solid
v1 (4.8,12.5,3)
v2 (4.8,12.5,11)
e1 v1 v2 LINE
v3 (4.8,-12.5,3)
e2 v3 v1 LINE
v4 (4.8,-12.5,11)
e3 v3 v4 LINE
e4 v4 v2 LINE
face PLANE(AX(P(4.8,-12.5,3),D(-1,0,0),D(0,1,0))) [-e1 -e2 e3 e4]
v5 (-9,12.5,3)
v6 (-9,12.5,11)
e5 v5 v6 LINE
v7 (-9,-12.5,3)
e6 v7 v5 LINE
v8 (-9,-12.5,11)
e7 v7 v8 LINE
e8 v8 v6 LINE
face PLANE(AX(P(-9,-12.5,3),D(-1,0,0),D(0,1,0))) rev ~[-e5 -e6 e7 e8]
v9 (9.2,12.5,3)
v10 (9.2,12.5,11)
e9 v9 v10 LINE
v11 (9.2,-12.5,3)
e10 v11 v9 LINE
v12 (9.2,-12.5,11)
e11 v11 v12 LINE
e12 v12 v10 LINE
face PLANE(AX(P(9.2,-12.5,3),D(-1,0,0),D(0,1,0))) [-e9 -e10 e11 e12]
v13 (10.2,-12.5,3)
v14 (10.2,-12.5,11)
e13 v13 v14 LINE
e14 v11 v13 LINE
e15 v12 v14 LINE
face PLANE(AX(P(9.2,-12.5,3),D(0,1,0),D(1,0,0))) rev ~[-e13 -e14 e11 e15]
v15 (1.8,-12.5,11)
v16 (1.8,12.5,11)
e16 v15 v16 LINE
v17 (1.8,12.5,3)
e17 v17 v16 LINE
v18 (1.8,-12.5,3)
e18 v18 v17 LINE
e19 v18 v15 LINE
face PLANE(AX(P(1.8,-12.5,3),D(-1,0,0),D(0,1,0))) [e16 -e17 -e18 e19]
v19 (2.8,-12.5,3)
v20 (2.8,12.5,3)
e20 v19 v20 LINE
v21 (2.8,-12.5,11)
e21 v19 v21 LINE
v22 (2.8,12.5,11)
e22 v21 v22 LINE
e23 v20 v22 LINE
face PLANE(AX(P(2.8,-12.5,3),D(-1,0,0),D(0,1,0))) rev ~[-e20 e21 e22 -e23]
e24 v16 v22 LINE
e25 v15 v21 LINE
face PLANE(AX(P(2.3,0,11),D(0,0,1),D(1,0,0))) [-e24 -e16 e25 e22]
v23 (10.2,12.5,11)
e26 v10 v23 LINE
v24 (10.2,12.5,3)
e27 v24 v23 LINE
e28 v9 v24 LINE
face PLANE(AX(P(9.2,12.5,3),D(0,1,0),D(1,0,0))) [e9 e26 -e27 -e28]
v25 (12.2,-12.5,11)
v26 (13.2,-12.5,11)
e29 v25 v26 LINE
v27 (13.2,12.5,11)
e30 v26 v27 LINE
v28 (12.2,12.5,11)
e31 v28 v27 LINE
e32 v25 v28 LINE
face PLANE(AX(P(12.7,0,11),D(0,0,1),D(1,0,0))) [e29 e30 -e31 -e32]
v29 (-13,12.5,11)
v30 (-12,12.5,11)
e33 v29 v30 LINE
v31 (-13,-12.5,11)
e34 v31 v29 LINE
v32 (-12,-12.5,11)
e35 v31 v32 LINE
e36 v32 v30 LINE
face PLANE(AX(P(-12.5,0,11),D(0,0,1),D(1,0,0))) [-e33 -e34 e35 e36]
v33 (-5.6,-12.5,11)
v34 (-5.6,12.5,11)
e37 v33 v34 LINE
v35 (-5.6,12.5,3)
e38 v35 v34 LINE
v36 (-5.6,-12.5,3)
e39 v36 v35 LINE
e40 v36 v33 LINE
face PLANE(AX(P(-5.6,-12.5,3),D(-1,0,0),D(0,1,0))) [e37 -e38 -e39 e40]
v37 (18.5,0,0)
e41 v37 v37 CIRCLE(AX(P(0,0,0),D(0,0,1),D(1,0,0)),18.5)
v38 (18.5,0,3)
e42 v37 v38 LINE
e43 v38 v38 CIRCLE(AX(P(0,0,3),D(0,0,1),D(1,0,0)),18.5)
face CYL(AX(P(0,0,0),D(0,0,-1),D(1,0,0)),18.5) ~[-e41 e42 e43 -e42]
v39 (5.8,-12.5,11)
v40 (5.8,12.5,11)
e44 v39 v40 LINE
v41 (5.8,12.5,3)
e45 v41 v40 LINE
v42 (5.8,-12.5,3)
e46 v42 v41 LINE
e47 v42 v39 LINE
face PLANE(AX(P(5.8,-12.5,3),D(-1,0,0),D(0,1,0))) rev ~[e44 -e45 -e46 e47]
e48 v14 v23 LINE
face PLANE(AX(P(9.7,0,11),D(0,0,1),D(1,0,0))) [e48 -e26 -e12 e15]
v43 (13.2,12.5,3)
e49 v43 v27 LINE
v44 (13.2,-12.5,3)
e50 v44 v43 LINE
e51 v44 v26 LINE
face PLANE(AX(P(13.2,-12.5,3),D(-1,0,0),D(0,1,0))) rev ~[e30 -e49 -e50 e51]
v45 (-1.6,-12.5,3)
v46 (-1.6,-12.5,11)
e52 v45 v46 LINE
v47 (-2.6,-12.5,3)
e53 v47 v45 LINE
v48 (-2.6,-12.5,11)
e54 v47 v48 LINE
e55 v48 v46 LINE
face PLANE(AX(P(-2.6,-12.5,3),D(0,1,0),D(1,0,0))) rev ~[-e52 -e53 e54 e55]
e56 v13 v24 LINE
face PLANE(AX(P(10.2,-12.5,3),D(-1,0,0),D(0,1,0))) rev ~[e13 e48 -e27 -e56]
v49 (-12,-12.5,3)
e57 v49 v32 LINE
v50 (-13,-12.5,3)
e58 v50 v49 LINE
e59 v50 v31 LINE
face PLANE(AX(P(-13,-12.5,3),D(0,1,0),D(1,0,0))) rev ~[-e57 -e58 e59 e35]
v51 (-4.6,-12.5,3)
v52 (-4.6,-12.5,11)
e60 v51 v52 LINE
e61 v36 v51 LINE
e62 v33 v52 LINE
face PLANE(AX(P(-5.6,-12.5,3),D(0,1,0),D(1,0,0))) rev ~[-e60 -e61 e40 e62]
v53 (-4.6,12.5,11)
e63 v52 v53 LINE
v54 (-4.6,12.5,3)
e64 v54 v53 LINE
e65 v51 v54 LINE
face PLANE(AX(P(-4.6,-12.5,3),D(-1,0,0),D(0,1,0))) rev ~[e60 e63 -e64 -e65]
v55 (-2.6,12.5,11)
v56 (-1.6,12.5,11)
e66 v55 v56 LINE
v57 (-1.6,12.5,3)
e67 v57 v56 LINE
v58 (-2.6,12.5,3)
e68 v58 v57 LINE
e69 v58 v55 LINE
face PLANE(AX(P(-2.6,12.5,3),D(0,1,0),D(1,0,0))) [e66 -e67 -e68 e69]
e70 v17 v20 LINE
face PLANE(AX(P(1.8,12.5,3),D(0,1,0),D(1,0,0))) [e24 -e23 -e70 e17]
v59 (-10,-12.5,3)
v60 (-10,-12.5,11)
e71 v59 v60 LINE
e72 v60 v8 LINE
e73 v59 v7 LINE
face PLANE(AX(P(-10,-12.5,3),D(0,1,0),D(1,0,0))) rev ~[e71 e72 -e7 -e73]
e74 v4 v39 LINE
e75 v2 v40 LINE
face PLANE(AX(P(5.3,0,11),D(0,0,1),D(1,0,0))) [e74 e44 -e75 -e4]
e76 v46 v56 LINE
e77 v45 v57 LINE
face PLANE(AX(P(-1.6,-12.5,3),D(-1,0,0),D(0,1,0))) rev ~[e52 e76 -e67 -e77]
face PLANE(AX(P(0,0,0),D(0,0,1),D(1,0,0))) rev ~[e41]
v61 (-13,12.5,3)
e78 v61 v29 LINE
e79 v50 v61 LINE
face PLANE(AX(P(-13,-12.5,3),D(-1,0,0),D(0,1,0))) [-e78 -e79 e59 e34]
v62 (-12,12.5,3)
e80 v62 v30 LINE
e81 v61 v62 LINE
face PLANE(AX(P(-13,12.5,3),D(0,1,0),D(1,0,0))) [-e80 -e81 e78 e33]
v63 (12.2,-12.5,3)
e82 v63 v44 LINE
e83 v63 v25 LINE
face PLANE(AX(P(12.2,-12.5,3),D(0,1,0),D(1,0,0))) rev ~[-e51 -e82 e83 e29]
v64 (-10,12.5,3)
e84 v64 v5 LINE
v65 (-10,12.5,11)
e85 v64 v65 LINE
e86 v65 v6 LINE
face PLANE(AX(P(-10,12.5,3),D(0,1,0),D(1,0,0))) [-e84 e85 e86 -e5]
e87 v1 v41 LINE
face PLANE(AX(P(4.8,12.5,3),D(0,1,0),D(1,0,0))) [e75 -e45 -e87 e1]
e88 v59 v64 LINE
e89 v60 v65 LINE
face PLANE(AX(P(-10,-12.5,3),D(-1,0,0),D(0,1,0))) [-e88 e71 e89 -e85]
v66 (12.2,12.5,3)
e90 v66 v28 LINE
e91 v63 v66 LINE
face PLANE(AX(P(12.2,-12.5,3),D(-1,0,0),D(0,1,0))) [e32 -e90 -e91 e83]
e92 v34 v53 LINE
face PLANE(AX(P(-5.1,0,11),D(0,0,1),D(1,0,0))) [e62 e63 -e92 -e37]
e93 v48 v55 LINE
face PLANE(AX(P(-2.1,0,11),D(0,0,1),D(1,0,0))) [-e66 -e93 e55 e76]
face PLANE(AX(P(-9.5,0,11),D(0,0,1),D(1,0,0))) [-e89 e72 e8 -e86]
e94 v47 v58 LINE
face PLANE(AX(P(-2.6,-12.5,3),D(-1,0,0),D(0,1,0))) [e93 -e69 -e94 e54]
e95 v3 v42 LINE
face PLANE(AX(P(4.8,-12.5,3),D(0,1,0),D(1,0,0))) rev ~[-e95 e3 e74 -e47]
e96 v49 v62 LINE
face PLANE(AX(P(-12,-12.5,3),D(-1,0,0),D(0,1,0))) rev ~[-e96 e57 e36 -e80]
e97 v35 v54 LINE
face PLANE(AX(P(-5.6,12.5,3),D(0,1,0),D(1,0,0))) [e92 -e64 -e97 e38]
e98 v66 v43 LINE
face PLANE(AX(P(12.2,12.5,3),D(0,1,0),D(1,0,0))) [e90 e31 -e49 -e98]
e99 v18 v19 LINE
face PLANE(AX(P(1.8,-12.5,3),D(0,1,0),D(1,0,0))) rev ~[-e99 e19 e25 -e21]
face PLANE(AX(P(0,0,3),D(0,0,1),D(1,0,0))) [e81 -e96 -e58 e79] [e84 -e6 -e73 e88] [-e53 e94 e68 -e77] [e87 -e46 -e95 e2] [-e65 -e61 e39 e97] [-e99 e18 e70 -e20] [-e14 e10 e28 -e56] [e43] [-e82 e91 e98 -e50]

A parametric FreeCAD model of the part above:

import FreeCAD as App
import Part
import Sketcher
from FreeCAD import Vector

doc = App.newDocument("Part")
body = doc.addObject("PartDesign::Body", "Body")

sketch1 = body.newObject("Sketcher::SketchObject", "Sketch")
sketch1.AttachmentSupport = (doc.getObject("XY_Plane"), [""])
sketch1.MapMode = "FlatFace"
sketch1.addGeometry(Part.Circle(Vector(0, 0, 0), Vector(0, 0, 1), 18), False)
sketch1.addConstraint(Sketcher.Constraint("Coincident", 0, 3, -1, 1))
sketch1.addConstraint(Sketcher.Constraint("Diameter", 0, 37.0))
pad1 = body.newObject("PartDesign::Pad", "Pad")
pad1.Profile = sketch1
pad1.Length = 3

sketch2 = body.newObject("Sketcher::SketchObject", "Sketch001")
sketch2.AttachmentSupport = (doc.getObject("XY_Plane"), [""])
sketch2.MapMode = "FlatFace"
sketch2.AttachmentOffset = App.Placement(Vector(0, 0, 3), App.Rotation())
sketch2.addGeometry(Part.LineSegment(Vector(-13, 12.5, 0), Vector(-13, -12.5, 0)), False)
sketch2.addGeometry(Part.LineSegment(Vector(-13, -12.5, 0), Vector(-12, -12.5, 0)), False)
sketch2.addGeometry(Part.LineSegment(Vector(-12, -12.5, 0), Vector(-12, 12.5, 0)), False)
sketch2.addGeometry(Part.LineSegment(Vector(-12, 12.5, 0), Vector(-13, 12.5, 0)), False)
sketch2.addGeometry(Part.LineSegment(Vector(-10, 12.5, 0), Vector(-10, -12.5, 0)), False)
sketch2.addGeometry(Part.LineSegment(Vector(-10, -12.5, 0), Vector(-9, -12.5, 0)), False)
sketch2.addGeometry(Part.LineSegment(Vector(-9, -12.5, 0), Vector(-9, 12.5, 0)), False)
sketch2.addGeometry(Part.LineSegment(Vector(-9, 12.5, 0), Vector(-10, 12.5, 0)), False)
sketch2.addGeometry(Part.LineSegment(Vector(-5.6, 12.5, 0), Vector(-5.6, -12.5, 0)), False)
sketch2.addGeometry(Part.LineSegment(Vector(-5.6, -12.5, 0), Vector(-4.6, -12.5, 0)), False)
sketch2.addGeometry(Part.LineSegment(Vector(-4.6, -12.5, 0), Vector(-4.6, 12.5, 0)), False)
sketch2.addGeometry(Part.LineSegment(Vector(-4.6, 12.5, 0), Vector(-5.6, 12.5, 0)), False)
sketch2.addGeometry(Part.LineSegment(Vector(-2.6, 12.5, 0), Vector(-2.6, -12.5, 0)), False)
sketch2.addGeometry(Part.LineSegment(Vector(-2.6, -12.5, 0), Vector(-1.6, -12.5, 0)), False)
sketch2.addGeometry(Part.LineSegment(Vector(-1.6, -12.5, 0), Vector(-1.6, 12.5, 0)), False)
sketch2.addGeometry(Part.LineSegment(Vector(-1.6, 12.5, 0), Vector(-2.6, 12.5, 0)), False)
sketch2.addGeometry(Part.LineSegment(Vector(1.8, 12.5, 0), Vector(1.8, -12.5, 0)), False)
sketch2.addGeometry(Part.LineSegment(Vector(1.8, -12.5, 0), Vector(2.8, -12.5, 0)), False)
sketch2.addGeometry(Part.LineSegment(Vector(2.8, -12.5, 0), Vector(2.8, 12.5, 0)), False)
sketch2.addGeometry(Part.LineSegment(Vector(2.8, 12.5, 0), Vector(1.8, 12.5, 0)), False)
sketch2.addGeometry(Part.LineSegment(Vector(4.8, 12.5, 0), Vector(4.8, -12.5, 0)), False)
sketch2.addGeometry(Part.LineSegment(Vector(4.8, -12.5, 0), Vector(5.8, -12.5, 0)), False)
sketch2.addGeometry(Part.LineSegment(Vector(5.8, -12.5, 0), Vector(5.8, 12.5, 0)), False)
sketch2.addGeometry(Part.LineSegment(Vector(5.8, 12.5, 0), Vector(4.8, 12.5, 0)), False)
sketch2.addGeometry(Part.LineSegment(Vector(9.2, 12.5, 0), Vector(9.2, -12.5, 0)), False)
sketch2.addGeometry(Part.LineSegment(Vector(9.2, -12.5, 0), Vector(10.2, -12.5, 0)), False)
sketch2.addGeometry(Part.LineSegment(Vector(10.2, -12.5, 0), Vector(10.2, 12.5, 0)), False)
sketch2.addGeometry(Part.LineSegment(Vector(10.2, 12.5, 0), Vector(9.2, 12.5, 0)), False)
sketch2.addGeometry(Part.LineSegment(Vector(12.2, 12.5, 0), Vector(12.2, -12.5, 0)), False)
sketch2.addGeometry(Part.LineSegment(Vector(12.2, -12.5, 0), Vector(13.2, -12.5, 0)), False)
sketch2.addGeometry(Part.LineSegment(Vector(13.2, -12.5, 0), Vector(13.2, 12.5, 0)), False)
sketch2.addGeometry(Part.LineSegment(Vector(13.2, 12.5, 0), Vector(12.2, 12.5, 0)), False)
sketch2.addConstraint(Sketcher.Constraint("Coincident", 0, 2, 1, 1))
sketch2.addConstraint(Sketcher.Constraint("Coincident", 1, 2, 2, 1))
sketch2.addConstraint(Sketcher.Constraint("Coincident", 2, 2, 3, 1))
sketch2.addConstraint(Sketcher.Constraint("Coincident", 3, 2, 0, 1))
sketch2.addConstraint(Sketcher.Constraint("Coincident", 4, 2, 5, 1))
sketch2.addConstraint(Sketcher.Constraint("Coincident", 5, 2, 6, 1))
sketch2.addConstraint(Sketcher.Constraint("Coincident", 6, 2, 7, 1))
sketch2.addConstraint(Sketcher.Constraint("Coincident", 7, 2, 4, 1))
sketch2.addConstraint(Sketcher.Constraint("Coincident", 8, 2, 9, 1))
sketch2.addConstraint(Sketcher.Constraint("Coincident", 9, 2, 10, 1))
sketch2.addConstraint(Sketcher.Constraint("Coincident", 10, 2, 11, 1))
sketch2.addConstraint(Sketcher.Constraint("Coincident", 11, 2, 8, 1))
sketch2.addConstraint(Sketcher.Constraint("Coincident", 12, 2, 13, 1))
sketch2.addConstraint(Sketcher.Constraint("Coincident", 13, 2, 14, 1))
sketch2.addConstraint(Sketcher.Constraint("Coincident", 14, 2, 15, 1))
sketch2.addConstraint(Sketcher.Constraint("Coincident", 15, 2, 12, 1))
sketch2.addConstraint(Sketcher.Constraint("Coincident", 16, 2, 17, 1))
sketch2.addConstraint(Sketcher.Constraint("Coincident", 17, 2, 18, 1))
sketch2.addConstraint(Sketcher.Constraint("Coincident", 18, 2, 19, 1))
sketch2.addConstraint(Sketcher.Constraint("Coincident", 19, 2, 16, 1))
sketch2.addConstraint(Sketcher.Constraint("Coincident", 20, 2, 21, 1))
sketch2.addConstraint(Sketcher.Constraint("Coincident", 21, 2, 22, 1))
sketch2.addConstraint(Sketcher.Constraint("Coincident", 22, 2, 23, 1))
sketch2.addConstraint(Sketcher.Constraint("Coincident", 23, 2, 20, 1))
sketch2.addConstraint(Sketcher.Constraint("Coincident", 24, 2, 25, 1))
sketch2.addConstraint(Sketcher.Constraint("Coincident", 25, 2, 26, 1))
sketch2.addConstraint(Sketcher.Constraint("Coincident", 26, 2, 27, 1))
sketch2.addConstraint(Sketcher.Constraint("Coincident", 27, 2, 24, 1))
sketch2.addConstraint(Sketcher.Constraint("Coincident", 28, 2, 29, 1))
sketch2.addConstraint(Sketcher.Constraint("Coincident", 29, 2, 30, 1))
sketch2.addConstraint(Sketcher.Constraint("Coincident", 30, 2, 31, 1))
sketch2.addConstraint(Sketcher.Constraint("Coincident", 31, 2, 28, 1))
sketch2.addConstraint(Sketcher.Constraint("Vertical", 0))
sketch2.addConstraint(Sketcher.Constraint("Horizontal", 1))
sketch2.addConstraint(Sketcher.Constraint("Vertical", 2))
sketch2.addConstraint(Sketcher.Constraint("Horizontal", 3))
sketch2.addConstraint(Sketcher.Constraint("Vertical", 4))
sketch2.addConstraint(Sketcher.Constraint("Horizontal", 5))
sketch2.addConstraint(Sketcher.Constraint("Vertical", 6))
sketch2.addConstraint(Sketcher.Constraint("Horizontal", 7))
sketch2.addConstraint(Sketcher.Constraint("Vertical", 8))
sketch2.addConstraint(Sketcher.Constraint("Horizontal", 9))
sketch2.addConstraint(Sketcher.Constraint("Vertical", 10))
sketch2.addConstraint(Sketcher.Constraint("Horizontal", 11))
sketch2.addConstraint(Sketcher.Constraint("Vertical", 12))
sketch2.addConstraint(Sketcher.Constraint("Horizontal", 13))
sketch2.addConstraint(Sketcher.Constraint("Vertical", 14))
sketch2.addConstraint(Sketcher.Constraint("Horizontal", 15))
sketch2.addConstraint(Sketcher.Constraint("Vertical", 16))
sketch2.addConstraint(Sketcher.Constraint("Horizontal", 17))
sketch2.addConstraint(Sketcher.Constraint("Vertical", 18))
sketch2.addConstraint(Sketcher.Constraint("Horizontal", 19))
sketch2.addConstraint(Sketcher.Constraint("Vertical", 20))
sketch2.addConstraint(Sketcher.Constraint("Horizontal", 21))
sketch2.addConstraint(Sketcher.Constraint("Vertical", 22))
sketch2.addConstraint(Sketcher.Constraint("Horizontal", 23))
sketch2.addConstraint(Sketcher.Constraint("Vertical", 24))
sketch2.addConstraint(Sketcher.Constraint("Horizontal", 25))
sketch2.addConstraint(Sketcher.Constraint("Vertical", 26))
sketch2.addConstraint(Sketcher.Constraint("Horizontal", 27))
sketch2.addConstraint(Sketcher.Constraint("Vertical", 28))
sketch2.addConstraint(Sketcher.Constraint("Horizontal", 29))
sketch2.addConstraint(Sketcher.Constraint("Vertical", 30))
sketch2.addConstraint(Sketcher.Constraint("Horizontal", 31))
sketch2.addConstraint(Sketcher.Constraint("Horizontal", 1, 2, 4, 2))
sketch2.addConstraint(Sketcher.Constraint("Horizontal", 3, 2, 6, 2))
sketch2.addConstraint(Sketcher.Constraint("Horizontal", 5, 2, 8, 2))
sketch2.addConstraint(Sketcher.Constraint("Horizontal", 7, 2, 10, 2))
sketch2.addConstraint(Sketcher.Constraint("Horizontal", 9, 2, 12, 2))
sketch2.addConstraint(Sketcher.Constraint("Horizontal", 11, 2, 14, 2))
sketch2.addConstraint(Sketcher.Constraint("Horizontal", 13, 2, 16, 2))
sketch2.addConstraint(Sketcher.Constraint("Horizontal", 15, 2, 18, 2))
sketch2.addConstraint(Sketcher.Constraint("Horizontal", 17, 2, 20, 2))
sketch2.addConstraint(Sketcher.Constraint("Horizontal", 19, 2, 22, 2))
sketch2.addConstraint(Sketcher.Constraint("Horizontal", 21, 2, 24, 2))
sketch2.addConstraint(Sketcher.Constraint("Horizontal", 23, 2, 26, 2))
sketch2.addConstraint(Sketcher.Constraint("Horizontal", 25, 2, 28, 2))
sketch2.addConstraint(Sketcher.Constraint("Horizontal", 27, 2, 30, 2))
sketch2.addConstraint(Sketcher.Constraint("Equal", 3, 5))
sketch2.addConstraint(Sketcher.Constraint("Equal", 7, 9))
sketch2.addConstraint(Sketcher.Constraint("Equal", 11, 13))
sketch2.addConstraint(Sketcher.Constraint("Equal", 15, 17))
sketch2.addConstraint(Sketcher.Constraint("Equal", 19, 21))
sketch2.addConstraint(Sketcher.Constraint("Equal", 23, 25))
sketch2.addConstraint(Sketcher.Constraint("Equal", 27, 29))
sketch2.addConstraint(Sketcher.Constraint("DistanceX", 1, 1, 1, 2, 1.0))
sketch2.addConstraint(Sketcher.Constraint("DistanceY", 0, 2, 0, 1, 25.0))
sketch2.addConstraint(Sketcher.Constraint("DistanceX", 0, 2, -1, 1, 13.0))
sketch2.addConstraint(Sketcher.Constraint("DistanceX", 4, 2, -1, 1, 10.0))
sketch2.addConstraint(Sketcher.Constraint("DistanceX", 9, 2, 12, 2, 2.0))
sketch2.addConstraint(Sketcher.Constraint("DistanceX", 17, 2, 20, 2, 2.0))
sketch2.addConstraint(Sketcher.Constraint("DistanceX", 25, 2, 28, 2, 2.0))
sketch2.addConstraint(Sketcher.Constraint("DistanceY", 0, 2, -1, 1, 12.5))
sketch2.addConstraint(Sketcher.Constraint("DistanceX", 8, 2, -1, 1, 5.6))
sketch2.addConstraint(Sketcher.Constraint("DistanceX", -1, 1, 16, 2, 1.8))
sketch2.addConstraint(Sketcher.Constraint("DistanceX", -1, 1, 24, 2, 9.2))
pad2 = body.newObject("PartDesign::Pad", "Pad001")
pad2.Profile = sketch2
pad2.Length = 8

doc.recompute()
